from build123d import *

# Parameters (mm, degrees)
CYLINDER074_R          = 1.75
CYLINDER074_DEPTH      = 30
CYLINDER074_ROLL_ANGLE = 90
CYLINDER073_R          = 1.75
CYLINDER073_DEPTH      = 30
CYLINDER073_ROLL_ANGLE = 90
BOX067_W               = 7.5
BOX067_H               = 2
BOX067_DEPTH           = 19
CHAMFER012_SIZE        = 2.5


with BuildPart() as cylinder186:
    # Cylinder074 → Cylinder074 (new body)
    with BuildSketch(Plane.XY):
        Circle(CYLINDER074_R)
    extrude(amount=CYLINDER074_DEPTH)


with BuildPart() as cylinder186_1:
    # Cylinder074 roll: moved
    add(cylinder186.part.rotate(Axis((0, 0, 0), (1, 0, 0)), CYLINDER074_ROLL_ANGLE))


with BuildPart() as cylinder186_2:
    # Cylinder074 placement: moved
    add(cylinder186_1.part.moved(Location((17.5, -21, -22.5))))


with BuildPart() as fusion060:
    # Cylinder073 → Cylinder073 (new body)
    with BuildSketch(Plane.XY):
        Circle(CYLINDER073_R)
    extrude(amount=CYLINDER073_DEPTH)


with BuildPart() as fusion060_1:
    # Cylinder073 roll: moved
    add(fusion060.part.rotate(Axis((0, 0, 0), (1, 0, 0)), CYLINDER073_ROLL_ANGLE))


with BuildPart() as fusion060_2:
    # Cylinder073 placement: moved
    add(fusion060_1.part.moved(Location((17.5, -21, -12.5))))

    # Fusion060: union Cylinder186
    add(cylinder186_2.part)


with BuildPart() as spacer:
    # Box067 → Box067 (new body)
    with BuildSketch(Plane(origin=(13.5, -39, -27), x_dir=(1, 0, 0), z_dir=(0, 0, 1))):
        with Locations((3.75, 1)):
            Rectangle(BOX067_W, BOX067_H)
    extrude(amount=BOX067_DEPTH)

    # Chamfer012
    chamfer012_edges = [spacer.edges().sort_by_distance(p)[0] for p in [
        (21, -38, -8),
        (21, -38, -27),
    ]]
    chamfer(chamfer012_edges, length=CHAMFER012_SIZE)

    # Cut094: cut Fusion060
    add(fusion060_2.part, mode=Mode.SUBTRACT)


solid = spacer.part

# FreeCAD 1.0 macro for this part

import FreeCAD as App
import Part
import Sketcher


def edges_at(feature, points):
    """Names of the edges that pass closest to the given points."""
    edges = feature.Shape.Edges
    near = lambda p: min(range(len(edges)), key=lambda i: edges[i].distToShape(Part.Vertex(*p))[0])
    return sorted({f"Edge{near(p) + 1}" for p in points})


def add_polygon(sketch, points):
    """Adds a closed chain of lines whose ends are joined by coincident constraints."""
    first, n = sketch.GeometryCount, len(points)
    for a, b in zip(points, points[1:] + points[:1]):
        sketch.addGeometry(Part.LineSegment(App.Vector(*a, 0), App.Vector(*b, 0)), False)
    for i in range(n):
        sketch.addConstraint(Sketcher.Constraint("Coincident", first + i, 2, first + (i + 1) % n, 1))

doc = App.newDocument("Part")
body = doc.addObject("PartDesign::Body", "Body")

# Sketch on XY plane
sketch1 = body.newObject("Sketcher::SketchObject", "Sketch")
sketch1.AttachmentSupport = (doc.getObject("XY_Plane"), [""])
sketch1.MapMode = "FlatFace"
sketch1.addGeometry(Part.Circle(App.Vector(0, 0, 0), App.Vector(0, 0, 1), 1.8), False)
sketch1.addConstraint([
    Sketcher.Constraint("Coincident", 0, 3, -1, 1),
    Sketcher.Constraint("Diameter", 0, 3.5),
])
pad1 = body.newObject("PartDesign::Pad", "Pad")
pad1.Profile = sketch1
pad1.Length = 30
body2 = doc.addObject("PartDesign::Body", "Body001")
doc.recompute()

body.Placement = App.Placement(App.Vector(0, 0, 0), App.Rotation(App.Vector(1, 0, 0), 90))
boolean = body2.newObject("PartDesign::Boolean", "Boolean")
boolean.Type = "Fuse"
boolean.addObjects([body])
body3 = doc.addObject("PartDesign::Body", "Body002")
doc.recompute()

body2.Placement = App.Placement(App.Vector(17.5, -21, -22.5), App.Rotation(App.Vector(0, 0, 1), 0))
boolean2 = body3.newObject("PartDesign::Boolean", "Boolean001")
boolean2.Type = "Fuse"
boolean2.addObjects([body2])
body4 = doc.addObject("PartDesign::Body", "Body003")

# Sketch on XY plane
sketch2 = body4.newObject("Sketcher::SketchObject", "Sketch001")
sketch2.AttachmentSupport = (doc.getObject("XY_Plane003"), [""])
sketch2.MapMode = "FlatFace"
sketch2.addGeometry(Part.Circle(App.Vector(0, 0, 0), App.Vector(0, 0, 1), 1.8), False)
sketch2.addConstraint([
    Sketcher.Constraint("Coincident", 0, 3, -1, 1),
    Sketcher.Constraint("Diameter", 0, 3.5),
])
pad2 = body4.newObject("PartDesign::Pad", "Pad001")
pad2.Profile = sketch2
pad2.Length = 30
body5 = doc.addObject("PartDesign::Body", "Body004")
doc.recompute()

body4.Placement = App.Placement(App.Vector(0, 0, 0), App.Rotation(App.Vector(1, 0, 0), 90))
boolean3 = body5.newObject("PartDesign::Boolean", "Boolean002")
boolean3.Type = "Fuse"
boolean3.addObjects([body4])
body6 = doc.addObject("PartDesign::Body", "Body005")
body6.AllowCompound = True
doc.recompute()

body5.Placement = App.Placement(App.Vector(17.5, -21, -12.5), App.Rotation(App.Vector(0, 0, 1), 0))
boolean4 = body6.newObject("PartDesign::Boolean", "Boolean003")
boolean4.Type = "Fuse"
boolean4.addObjects([body5])
doc.recompute()

boolean5 = body6.newObject("PartDesign::Boolean", "Boolean004")
boolean5.Type = "Fuse"
boolean5.addObjects([body3])
body7 = doc.addObject("PartDesign::Body", "Body006")

# Sketch on XY plane
sketch3 = body7.newObject("Sketcher::SketchObject", "Sketch002")
sketch3.AttachmentSupport = (doc.getObject("XY_Plane006"), [""])
sketch3.MapMode = "FlatFace"
sketch3.AttachmentOffset = App.Placement(App.Vector(0, 0, -27), App.Rotation())
add_polygon(sketch3, [(13.5, -37), (13.5, -39), (21, -39), (21, -37)])  # lines 0-3
sketch3.addConstraint([
    Sketcher.Constraint("Vertical", 0),
    Sketcher.Constraint("Horizontal", 1),
    Sketcher.Constraint("Vertical", 2),
    Sketcher.Constraint("Horizontal", 3),
    Sketcher.Constraint("DistanceY", 0, 2, 0, 1, 2.0),
    Sketcher.Constraint("DistanceX", 1, 1, 1, 2, 7.5),
    Sketcher.Constraint("DistanceY", 0, 2, -1, 1, 39.0),
    Sketcher.Constraint("DistanceX", -1, 1, 1, 2, 21.0),
])
pad3 = body7.newObject("PartDesign::Pad", "Pad002")
pad3.Profile = sketch3
pad3.Length = 19
doc.recompute()

chamfer = body7.newObject("PartDesign::Chamfer", "Chamfer")
chamfer.Base = (pad3, edges_at(pad3, [(21, -38, -8), (21, -38, -27)]))
chamfer.Size = 2.5
doc.recompute()

boolean6 = body7.newObject("PartDesign::Boolean", "Boolean005")
boolean6.Type = "Cut"
boolean6.addObjects([body6])

doc.recompute()
